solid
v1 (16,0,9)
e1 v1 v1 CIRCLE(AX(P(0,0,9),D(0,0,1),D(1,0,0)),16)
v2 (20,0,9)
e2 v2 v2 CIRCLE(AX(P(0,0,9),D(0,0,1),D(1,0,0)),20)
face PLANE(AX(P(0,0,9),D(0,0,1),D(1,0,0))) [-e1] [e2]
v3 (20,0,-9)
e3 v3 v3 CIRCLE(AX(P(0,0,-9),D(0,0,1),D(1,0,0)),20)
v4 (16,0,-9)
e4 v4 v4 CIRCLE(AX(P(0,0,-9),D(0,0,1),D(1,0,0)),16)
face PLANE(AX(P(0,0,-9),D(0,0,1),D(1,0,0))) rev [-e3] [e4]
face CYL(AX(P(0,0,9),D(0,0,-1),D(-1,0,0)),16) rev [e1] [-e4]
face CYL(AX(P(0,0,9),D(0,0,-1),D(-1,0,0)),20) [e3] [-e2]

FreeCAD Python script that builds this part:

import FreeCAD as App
import Part
import Sketcher
from FreeCAD import Vector
Q = App.Units.Quantity

doc = App.newDocument("Part")
params = doc.addObject("Spreadsheet::Sheet", "Params")
for row, (alias, value) in enumerate([
    ("sketch1_diameter", "40 mm"),
    ("sketch1_diameter2", "32 mm"),
    ("pad1_length", "18 mm"),
], start=1):
    params.set(f"A{row}", alias)
    params.set(f"B{row}", "=" + value)
    params.setAlias(f"B{row}", alias)

body = doc.addObject("PartDesign::Body", "Body")

sketch1 = body.newObject("Sketcher::SketchObject", "Sketch")
sketch1.AttachmentSupport = (doc.getObject("XY_Plane"), [""])
sketch1.MapMode = "FlatFace"
sketch1.addGeometry([
    Part.Circle(Vector(0, 0, 0), Vector(0, 0, 1), 20),
    Part.Circle(Vector(0, 0, 0), Vector(0, 0, 1), 16),
], False)
sketch1.addConstraint([
    Sketcher.Constraint("Coincident", 0, 3, -1, 1),
    Sketcher.Constraint("Coincident", 1, 3, -1, 1),
    Sketcher.Constraint("Diameter", 0, Q("40 mm")),
    Sketcher.Constraint("Diameter", 1, Q("32 mm")),
])
sketch1.setExpression("Constraints[2]", "Params.sketch1_diameter")
sketch1.setExpression("Constraints[3]", "Params.sketch1_diameter2")
pad1 = body.newObject("PartDesign::Pad", "Pad")
pad1.Profile = sketch1
pad1.setExpression("Length", "Params.pad1_length")
pad1.Midplane = True

doc.recompute()
